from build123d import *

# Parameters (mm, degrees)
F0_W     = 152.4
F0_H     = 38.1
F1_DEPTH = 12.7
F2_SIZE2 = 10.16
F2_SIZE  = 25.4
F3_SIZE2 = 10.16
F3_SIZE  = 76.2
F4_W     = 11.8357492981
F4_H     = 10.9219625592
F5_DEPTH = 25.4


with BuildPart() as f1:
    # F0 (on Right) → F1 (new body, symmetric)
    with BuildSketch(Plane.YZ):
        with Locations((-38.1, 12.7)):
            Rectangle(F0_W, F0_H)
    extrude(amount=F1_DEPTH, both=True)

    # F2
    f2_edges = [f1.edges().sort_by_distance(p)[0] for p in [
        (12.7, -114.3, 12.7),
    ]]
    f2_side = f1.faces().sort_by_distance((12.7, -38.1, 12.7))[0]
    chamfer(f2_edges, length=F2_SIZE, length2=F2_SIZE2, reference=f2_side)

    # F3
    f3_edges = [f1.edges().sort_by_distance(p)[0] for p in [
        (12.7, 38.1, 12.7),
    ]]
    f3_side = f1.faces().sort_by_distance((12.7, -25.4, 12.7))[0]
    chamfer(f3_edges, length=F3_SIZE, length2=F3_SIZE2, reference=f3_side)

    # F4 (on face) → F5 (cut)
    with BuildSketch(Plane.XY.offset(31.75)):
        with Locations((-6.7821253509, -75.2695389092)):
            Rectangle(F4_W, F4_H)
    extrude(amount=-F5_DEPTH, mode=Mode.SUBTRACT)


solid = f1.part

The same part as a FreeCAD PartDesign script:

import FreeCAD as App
import Part
import Sketcher
Q = App.Units.Quantity


def edges_at(feature, points):
    """Names of the edges that pass closest to the given points."""
    edges = feature.Shape.Edges
    near = lambda p: min(range(len(edges)), key=lambda i: edges[i].distToShape(Part.Vertex(*p))[0])
    return sorted({f"Edge{near(p) + 1}" for p in points})


def add_polygon(sketch, points):
    """Adds a closed chain of lines whose ends are joined by coincident constraints."""
    first, n = sketch.GeometryCount, len(points)
    for a, b in zip(points, points[1:] + points[:1]):
        sketch.addGeometry(Part.LineSegment(App.Vector(*a, 0), App.Vector(*b, 0)), False)
    for i in range(n):
        sketch.addConstraint(Sketcher.Constraint("Coincident", first + i, 2, first + (i + 1) % n, 1))

doc = App.newDocument("Part")
body = doc.addObject("PartDesign::Body", "Body")

# Sketch on YZ plane
sketch1 = body.newObject("Sketcher::SketchObject", "Sketch")
sketch1.AttachmentSupport = (doc.getObject("YZ_Plane"), [""])
sketch1.MapMode = "FlatFace"
add_polygon(sketch1, [(-114, 32), (-114, -6), (38, -6), (38, 32)])  # lines 0-3
sketch1.addConstraint(Sketcher.Constraint("Vertical", 0))
sketch1.addConstraint(Sketcher.Constraint("Horizontal", 1))
sketch1.addConstraint(Sketcher.Constraint("Vertical", 2))
sketch1.addConstraint(Sketcher.Constraint("Horizontal", 3))
sketch1.addConstraint(Sketcher.Constraint("DistanceX", 1, 1, 1, 2, Q("6 in")))
sketch1.addConstraint(Sketcher.Constraint("DistanceY", 0, 2, 0, 1, Q("1.5 in")))
sketch1.addConstraint(Sketcher.Constraint("DistanceX", 0, 2, -1, 1, Q("4.5 in")))
sketch1.addConstraint(Sketcher.Constraint("DistanceY", 0, 2, -1, 1, Q("0.25 in")))
pad1 = body.newObject("PartDesign::Pad", "Pad")
pad1.Profile = sketch1
pad1.Length = Q("1 in")
pad1.Midplane = True
doc.recompute()

chamfer = body.newObject("PartDesign::Chamfer", "Chamfer")
chamfer.Base = (pad1, edges_at(pad1, [(12.7, -114.3, 12.7)]))
chamfer.ChamferType = "Two distances"
chamfer.Size = Q("1 in")
chamfer.Size2 = Q("0.4 in")
chamfer.FlipDirection = True
doc.recompute()

chamfer2 = body.newObject("PartDesign::Chamfer", "Chamfer001")
chamfer2.Base = (chamfer, edges_at(chamfer, [(12.7, 38.1, 12.7)]))
chamfer2.ChamferType = "Two distances"
chamfer2.Size = Q("3 in")
chamfer2.Size2 = Q("0.4 in")

# Sketch on XY plane
sketch2 = body.newObject("Sketcher::SketchObject", "Sketch001")
sketch2.AttachmentSupport = (doc.getObject("XY_Plane"), [""])
sketch2.MapMode = "FlatFace"
sketch2.AttachmentOffset = App.Placement(App.Vector(0, 0, 1.25 * 25.4), App.Rotation())
add_polygon(sketch2, [(-13, -70), (-13, -81), (-1, -81), (-1, -70)])  # lines 0-3
sketch2.addConstraint(Sketcher.Constraint("Vertical", 0))
sketch2.addConstraint(Sketcher.Constraint("Horizontal", 1))
sketch2.addConstraint(Sketcher.Constraint("Vertical", 2))
sketch2.addConstraint(Sketcher.Constraint("Horizontal", 3))
sketch2.addConstraint(Sketcher.Constraint("DistanceX", 0, 2, -1, 1, Q("0.5 in")))
sketch2.addConstraint(Sketcher.Constraint("DistanceX", 1, 1, 1, 2, Q("11.835749 mm")))
sketch2.addConstraint(Sketcher.Constraint("DistanceY", 0, 2, 0, 1, Q("10.921963 mm")))
sketch2.addConstraint(Sketcher.Constraint("DistanceY", 0, 2, -1, 1, Q("80.73052 mm")))
pocket1 = body.newObject("PartDesign::Pocket", "Pocket")
pocket1.Profile = sketch2
pocket1.Length = Q("1 in")

doc.recompute()
